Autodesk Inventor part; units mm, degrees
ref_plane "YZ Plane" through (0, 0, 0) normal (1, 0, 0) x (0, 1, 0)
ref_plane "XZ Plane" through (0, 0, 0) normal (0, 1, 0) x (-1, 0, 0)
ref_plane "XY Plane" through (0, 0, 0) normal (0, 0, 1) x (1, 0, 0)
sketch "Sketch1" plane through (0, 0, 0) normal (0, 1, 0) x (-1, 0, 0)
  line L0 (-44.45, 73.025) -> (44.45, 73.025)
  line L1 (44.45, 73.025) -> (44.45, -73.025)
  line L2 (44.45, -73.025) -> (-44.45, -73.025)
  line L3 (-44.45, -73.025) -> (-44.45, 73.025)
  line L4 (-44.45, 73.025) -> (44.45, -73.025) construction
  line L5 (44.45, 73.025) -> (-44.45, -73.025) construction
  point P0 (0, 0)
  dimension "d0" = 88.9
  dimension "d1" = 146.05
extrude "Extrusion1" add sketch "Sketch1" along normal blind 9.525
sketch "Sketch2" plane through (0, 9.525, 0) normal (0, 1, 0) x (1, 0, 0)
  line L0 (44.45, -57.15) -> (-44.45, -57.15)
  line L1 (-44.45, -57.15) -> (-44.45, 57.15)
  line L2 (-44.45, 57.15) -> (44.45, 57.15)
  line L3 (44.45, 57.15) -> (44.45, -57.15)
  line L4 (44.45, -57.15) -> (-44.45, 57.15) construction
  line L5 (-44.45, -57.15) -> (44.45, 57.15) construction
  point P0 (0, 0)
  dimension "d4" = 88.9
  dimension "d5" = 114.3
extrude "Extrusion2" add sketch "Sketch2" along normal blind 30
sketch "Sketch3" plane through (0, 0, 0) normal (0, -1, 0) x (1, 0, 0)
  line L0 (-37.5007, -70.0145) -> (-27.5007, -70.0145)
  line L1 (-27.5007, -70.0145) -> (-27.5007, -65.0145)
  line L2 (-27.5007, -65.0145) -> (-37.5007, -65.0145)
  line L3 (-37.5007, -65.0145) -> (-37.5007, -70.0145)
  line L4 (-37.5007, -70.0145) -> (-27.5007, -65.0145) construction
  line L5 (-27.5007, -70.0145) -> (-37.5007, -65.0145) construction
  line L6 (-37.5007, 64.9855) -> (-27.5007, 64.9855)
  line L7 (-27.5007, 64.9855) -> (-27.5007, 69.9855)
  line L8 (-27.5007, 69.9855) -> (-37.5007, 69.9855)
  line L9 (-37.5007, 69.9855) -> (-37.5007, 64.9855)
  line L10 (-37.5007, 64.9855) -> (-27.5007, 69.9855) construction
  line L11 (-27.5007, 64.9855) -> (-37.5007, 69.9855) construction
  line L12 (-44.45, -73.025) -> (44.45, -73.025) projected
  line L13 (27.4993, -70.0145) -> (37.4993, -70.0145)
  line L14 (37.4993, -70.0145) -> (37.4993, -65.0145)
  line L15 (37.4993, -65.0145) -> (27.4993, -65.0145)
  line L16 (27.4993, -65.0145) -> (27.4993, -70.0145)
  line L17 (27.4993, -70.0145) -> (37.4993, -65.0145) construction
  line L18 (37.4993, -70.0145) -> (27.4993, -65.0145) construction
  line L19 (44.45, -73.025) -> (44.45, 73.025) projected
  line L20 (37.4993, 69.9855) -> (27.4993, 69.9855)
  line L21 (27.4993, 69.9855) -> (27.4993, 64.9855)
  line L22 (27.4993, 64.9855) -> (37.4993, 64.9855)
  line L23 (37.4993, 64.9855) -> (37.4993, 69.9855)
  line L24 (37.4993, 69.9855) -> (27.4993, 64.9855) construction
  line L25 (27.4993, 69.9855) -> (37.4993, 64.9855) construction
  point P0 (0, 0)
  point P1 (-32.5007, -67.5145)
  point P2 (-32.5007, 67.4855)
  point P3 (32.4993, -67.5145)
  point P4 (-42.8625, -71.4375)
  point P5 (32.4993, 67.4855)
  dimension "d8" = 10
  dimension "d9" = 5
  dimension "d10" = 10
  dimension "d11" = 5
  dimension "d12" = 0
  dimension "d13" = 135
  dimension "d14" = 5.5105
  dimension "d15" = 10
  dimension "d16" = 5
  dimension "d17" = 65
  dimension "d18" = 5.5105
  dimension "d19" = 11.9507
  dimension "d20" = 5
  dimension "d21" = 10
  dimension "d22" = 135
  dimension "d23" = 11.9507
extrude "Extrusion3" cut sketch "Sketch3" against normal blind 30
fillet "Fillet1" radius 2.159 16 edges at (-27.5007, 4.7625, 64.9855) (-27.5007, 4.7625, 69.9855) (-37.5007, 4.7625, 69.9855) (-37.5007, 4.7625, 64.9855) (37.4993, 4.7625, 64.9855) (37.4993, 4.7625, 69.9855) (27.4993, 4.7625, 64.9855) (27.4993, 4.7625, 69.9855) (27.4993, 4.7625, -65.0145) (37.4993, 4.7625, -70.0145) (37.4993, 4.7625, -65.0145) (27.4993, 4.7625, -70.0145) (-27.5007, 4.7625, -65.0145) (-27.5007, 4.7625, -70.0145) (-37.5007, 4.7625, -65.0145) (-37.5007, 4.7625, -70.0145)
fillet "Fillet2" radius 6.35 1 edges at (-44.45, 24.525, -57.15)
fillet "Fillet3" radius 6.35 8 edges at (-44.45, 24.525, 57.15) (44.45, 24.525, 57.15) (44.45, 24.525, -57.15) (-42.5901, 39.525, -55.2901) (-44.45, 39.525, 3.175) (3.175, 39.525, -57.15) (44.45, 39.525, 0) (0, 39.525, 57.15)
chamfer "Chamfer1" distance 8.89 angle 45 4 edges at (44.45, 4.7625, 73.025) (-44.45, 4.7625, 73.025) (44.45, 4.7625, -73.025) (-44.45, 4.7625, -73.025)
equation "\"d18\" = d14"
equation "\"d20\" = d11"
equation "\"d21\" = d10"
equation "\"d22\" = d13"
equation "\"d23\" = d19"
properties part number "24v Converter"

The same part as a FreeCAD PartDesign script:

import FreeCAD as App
import Part
import Sketcher

V = App.Vector
Q = App.Units.Quantity


def edges_at(feature, points):
    """Names of the edges that pass closest to the given points."""
    edges = feature.Shape.Edges
    near = lambda p: min(range(len(edges)), key=lambda i: edges[i].distToShape(Part.Vertex(*p))[0])
    return sorted({f"Edge{near(p) + 1}" for p in points})


def add_polygon(sketch, points):
    """Adds a closed chain of lines whose ends are joined by coincident constraints."""
    first, n = sketch.GeometryCount, len(points)
    for a, b in zip(points, points[1:] + points[:1]):
        sketch.addGeometry(Part.LineSegment(App.Vector(*a, 0), App.Vector(*b, 0)), False)
    for i in range(n):
        sketch.addConstraint(Sketcher.Constraint("Coincident", first + i, 2, first + (i + 1) % n, 1))

doc = App.newDocument("Part")
body = doc.addObject("PartDesign::Body", "Body")

# Sketch on XZ plane
sketch1 = doc.addObject("Sketcher::SketchObject", "Sketch")
body.addObject(sketch1)
sketch1.AttachmentSupport = (doc.XZ_Plane, [""])
sketch1.MapMode = "FlatFace"
add_polygon(sketch1, [(-44, 73), (44, 73), (44, -73), (-44, -73)])  # lines 0-3
sketch1.addConstraint([
    Sketcher.Constraint("Horizontal", 0),
    Sketcher.Constraint("Vertical", 1),
    Sketcher.Constraint("Horizontal", 2),
    Sketcher.Constraint("Vertical", 3),
    Sketcher.Constraint("Symmetric", 0, 2, 2, 2, -1, 1),
    Sketcher.Constraint("DistanceX", 0, 1, 0, 2, Q("3.5 in")),
    Sketcher.Constraint("DistanceY", 1, 2, 1, 1, Q("5.75 in")),
])
pad1 = doc.addObject("PartDesign::Pad", "Pad")
body.addObject(pad1)
pad1.Profile = sketch1
pad1.Length = Q("0.375 in")
pad1.Reversed = True

# Sketch on XZ plane
sketch2 = doc.addObject("Sketcher::SketchObject", "Sketch001")
body.addObject(sketch2)
sketch2.AttachmentSupport = (doc.XZ_Plane, [""])
sketch2.MapMode = "FlatFace"
sketch2.AttachmentOffset = App.Placement(V(0, 0, -0.375 * 25.4), App.Rotation())
add_polygon(sketch2, [(-44, 57), (44, 57), (44, -57), (-44, -57)])  # lines 0-3
sketch2.addConstraint([
    Sketcher.Constraint("Horizontal", 0),
    Sketcher.Constraint("Vertical", 1),
    Sketcher.Constraint("Horizontal", 2),
    Sketcher.Constraint("Vertical", 3),
    Sketcher.Constraint("Symmetric", 0, 2, 2, 2, -1, 1),
    Sketcher.Constraint("DistanceX", 0, 1, 0, 2, Q("3.5 in")),
    Sketcher.Constraint("DistanceY", 1, 2, 1, 1, Q("4.5 in")),
])
pad2 = doc.addObject("PartDesign::Pad", "Pad001")
body.addObject(pad2)
pad2.Profile = sketch2
pad2.Length = Q("1.1811024 in")
pad2.Reversed = True

# Sketch on XZ plane
sketch3 = doc.addObject("Sketcher::SketchObject", "Sketch002")
body.addObject(sketch3)
sketch3.AttachmentSupport = (doc.XZ_Plane, [""])
sketch3.MapMode = "FlatFace"
add_polygon(sketch3, [(-38, -65), (-38, -70), (-28, -70), (-28, -65)])  # lines 0-3
add_polygon(sketch3, [(-38, 70), (-38, 65), (-28, 65), (-28, 70)])  # lines 4-7
add_polygon(sketch3, [(27, -65), (27, -70), (37, -70), (37, -65)])  # lines 8-11
add_polygon(sketch3, [(37, 65), (37, 70), (27, 70), (27, 65)])  # lines 12-15
sketch3.addConstraint([
    Sketcher.Constraint("Vertical", 0),
    Sketcher.Constraint("Horizontal", 1),
    Sketcher.Constraint("Vertical", 2),
    Sketcher.Constraint("Horizontal", 3),
    Sketcher.Constraint("Vertical", 4),
    Sketcher.Constraint("Horizontal", 5),
    Sketcher.Constraint("Vertical", 6),
    Sketcher.Constraint("Horizontal", 7),
    Sketcher.Constraint("Vertical", 8),
    Sketcher.Constraint("Horizontal", 9),
    Sketcher.Constraint("Vertical", 10),
    Sketcher.Constraint("Horizontal", 11),
    Sketcher.Constraint("Vertical", 12),
    Sketcher.Constraint("Horizontal", 13),
    Sketcher.Constraint("Vertical", 14),
    Sketcher.Constraint("Horizontal", 15),
    Sketcher.Constraint("Horizontal", 1, 2, 8, 2),
    Sketcher.Constraint("Horizontal", 3, 2, 10, 2),
    Sketcher.Constraint("Horizontal", 7, 2, 12, 2),
    Sketcher.Constraint("Horizontal", 5, 2, 14, 2),
    Sketcher.Constraint("Vertical", 3, 2, 4, 2),
    Sketcher.Constraint("Vertical", 2, 2, 5, 2),
    Sketcher.Constraint("Vertical", 10, 2, 12, 2),
    Sketcher.Constraint("Vertical", 11, 2, 13, 2),
    Sketcher.Constraint("Equal", 7, 9),
    Sketcher.Constraint("Equal", 2, 4),
    Sketcher.Constraint("DistanceX", 1, 1, 1, 2, Q("0.3937 in")),
    Sketcher.Constraint("DistanceY", 0, 2, 0, 1, Q("5 mm")),
    Sketcher.Constraint("DistanceY", 0, 2, 4, 2, Q("135 mm")),
    Sketcher.Constraint("DistanceX", 0, 2, 8, 2, Q("65 mm")),
    Sketcher.Constraint("DistanceX", 0, 2, -1, 1, Q("1.4764 in")),
    Sketcher.Constraint("DistanceY", 0, 2, -1, 1, Q("70.0145 mm")),
])
pocket1 = doc.addObject("PartDesign::Pocket", "Pocket")
body.addObject(pocket1)
pocket1.Profile = sketch3
pocket1.Length = Q("1.1811024 in")
doc.recompute()

fillet = doc.addObject("PartDesign::Fillet", "Fillet")
body.addObject(fillet)
fillet.Base = (pocket1, edges_at(pocket1, [
    (-27.501, 4.763, 64.986),
    (-27.501, 4.763, 69.986),
    (-37.501, 4.763, 69.986),
    (-37.501, 4.763, 64.986),
    (37.499, 4.763, 64.986),
    (37.499, 4.763, 69.986),
    (27.499, 4.763, 64.986),
    (27.499, 4.763, 69.986),
    (27.499, 4.763, -65.014),
    (37.499, 4.763, -70.014),
    (37.499, 4.763, -65.014),
    (27.499, 4.763, -70.014),
    (-27.501, 4.763, -65.014),
    (-27.501, 4.763, -70.014),
    (-37.501, 4.763, -65.014),
    (-37.501, 4.763, -70.014),
]))
fillet.Radius = Q("0.085 in")
doc.recompute()

fillet2 = doc.addObject("PartDesign::Fillet", "Fillet001")
body.addObject(fillet2)
fillet2.Base = (fillet, edges_at(fillet, [(-44.45, 24.525, -57.15)]))
fillet2.Radius = Q("0.25 in")
doc.recompute()

fillet3 = doc.addObject("PartDesign::Fillet", "Fillet002")
body.addObject(fillet3)
fillet3.Base = (fillet2, edges_at(fillet2, [
    (-44.45, 24.525, 57.15),
    (44.45, 24.525, 57.15),
    (44.45, 24.525, -57.15),
    (-42.59, 39.525, -55.29),
    (-44.45, 39.525, 3.175),
    (3.175, 39.525, -57.15),
    (44.45, 39.525, 0),
    (0, 39.525, 57.15),
]))
fillet3.Radius = Q("0.25 in")
doc.recompute()

chamfer = doc.addObject("PartDesign::Chamfer", "Chamfer")
body.addObject(chamfer)
chamfer.Base = (fillet3, edges_at(fillet3, [
    (44.45, 4.763, 73.025),
    (-44.45, 4.763, 73.025),
    (44.45, 4.763, -73.025),
    (-44.45, 4.763, -73.025),
]))
chamfer.Size = Q("0.35 in")

doc.recompute()
